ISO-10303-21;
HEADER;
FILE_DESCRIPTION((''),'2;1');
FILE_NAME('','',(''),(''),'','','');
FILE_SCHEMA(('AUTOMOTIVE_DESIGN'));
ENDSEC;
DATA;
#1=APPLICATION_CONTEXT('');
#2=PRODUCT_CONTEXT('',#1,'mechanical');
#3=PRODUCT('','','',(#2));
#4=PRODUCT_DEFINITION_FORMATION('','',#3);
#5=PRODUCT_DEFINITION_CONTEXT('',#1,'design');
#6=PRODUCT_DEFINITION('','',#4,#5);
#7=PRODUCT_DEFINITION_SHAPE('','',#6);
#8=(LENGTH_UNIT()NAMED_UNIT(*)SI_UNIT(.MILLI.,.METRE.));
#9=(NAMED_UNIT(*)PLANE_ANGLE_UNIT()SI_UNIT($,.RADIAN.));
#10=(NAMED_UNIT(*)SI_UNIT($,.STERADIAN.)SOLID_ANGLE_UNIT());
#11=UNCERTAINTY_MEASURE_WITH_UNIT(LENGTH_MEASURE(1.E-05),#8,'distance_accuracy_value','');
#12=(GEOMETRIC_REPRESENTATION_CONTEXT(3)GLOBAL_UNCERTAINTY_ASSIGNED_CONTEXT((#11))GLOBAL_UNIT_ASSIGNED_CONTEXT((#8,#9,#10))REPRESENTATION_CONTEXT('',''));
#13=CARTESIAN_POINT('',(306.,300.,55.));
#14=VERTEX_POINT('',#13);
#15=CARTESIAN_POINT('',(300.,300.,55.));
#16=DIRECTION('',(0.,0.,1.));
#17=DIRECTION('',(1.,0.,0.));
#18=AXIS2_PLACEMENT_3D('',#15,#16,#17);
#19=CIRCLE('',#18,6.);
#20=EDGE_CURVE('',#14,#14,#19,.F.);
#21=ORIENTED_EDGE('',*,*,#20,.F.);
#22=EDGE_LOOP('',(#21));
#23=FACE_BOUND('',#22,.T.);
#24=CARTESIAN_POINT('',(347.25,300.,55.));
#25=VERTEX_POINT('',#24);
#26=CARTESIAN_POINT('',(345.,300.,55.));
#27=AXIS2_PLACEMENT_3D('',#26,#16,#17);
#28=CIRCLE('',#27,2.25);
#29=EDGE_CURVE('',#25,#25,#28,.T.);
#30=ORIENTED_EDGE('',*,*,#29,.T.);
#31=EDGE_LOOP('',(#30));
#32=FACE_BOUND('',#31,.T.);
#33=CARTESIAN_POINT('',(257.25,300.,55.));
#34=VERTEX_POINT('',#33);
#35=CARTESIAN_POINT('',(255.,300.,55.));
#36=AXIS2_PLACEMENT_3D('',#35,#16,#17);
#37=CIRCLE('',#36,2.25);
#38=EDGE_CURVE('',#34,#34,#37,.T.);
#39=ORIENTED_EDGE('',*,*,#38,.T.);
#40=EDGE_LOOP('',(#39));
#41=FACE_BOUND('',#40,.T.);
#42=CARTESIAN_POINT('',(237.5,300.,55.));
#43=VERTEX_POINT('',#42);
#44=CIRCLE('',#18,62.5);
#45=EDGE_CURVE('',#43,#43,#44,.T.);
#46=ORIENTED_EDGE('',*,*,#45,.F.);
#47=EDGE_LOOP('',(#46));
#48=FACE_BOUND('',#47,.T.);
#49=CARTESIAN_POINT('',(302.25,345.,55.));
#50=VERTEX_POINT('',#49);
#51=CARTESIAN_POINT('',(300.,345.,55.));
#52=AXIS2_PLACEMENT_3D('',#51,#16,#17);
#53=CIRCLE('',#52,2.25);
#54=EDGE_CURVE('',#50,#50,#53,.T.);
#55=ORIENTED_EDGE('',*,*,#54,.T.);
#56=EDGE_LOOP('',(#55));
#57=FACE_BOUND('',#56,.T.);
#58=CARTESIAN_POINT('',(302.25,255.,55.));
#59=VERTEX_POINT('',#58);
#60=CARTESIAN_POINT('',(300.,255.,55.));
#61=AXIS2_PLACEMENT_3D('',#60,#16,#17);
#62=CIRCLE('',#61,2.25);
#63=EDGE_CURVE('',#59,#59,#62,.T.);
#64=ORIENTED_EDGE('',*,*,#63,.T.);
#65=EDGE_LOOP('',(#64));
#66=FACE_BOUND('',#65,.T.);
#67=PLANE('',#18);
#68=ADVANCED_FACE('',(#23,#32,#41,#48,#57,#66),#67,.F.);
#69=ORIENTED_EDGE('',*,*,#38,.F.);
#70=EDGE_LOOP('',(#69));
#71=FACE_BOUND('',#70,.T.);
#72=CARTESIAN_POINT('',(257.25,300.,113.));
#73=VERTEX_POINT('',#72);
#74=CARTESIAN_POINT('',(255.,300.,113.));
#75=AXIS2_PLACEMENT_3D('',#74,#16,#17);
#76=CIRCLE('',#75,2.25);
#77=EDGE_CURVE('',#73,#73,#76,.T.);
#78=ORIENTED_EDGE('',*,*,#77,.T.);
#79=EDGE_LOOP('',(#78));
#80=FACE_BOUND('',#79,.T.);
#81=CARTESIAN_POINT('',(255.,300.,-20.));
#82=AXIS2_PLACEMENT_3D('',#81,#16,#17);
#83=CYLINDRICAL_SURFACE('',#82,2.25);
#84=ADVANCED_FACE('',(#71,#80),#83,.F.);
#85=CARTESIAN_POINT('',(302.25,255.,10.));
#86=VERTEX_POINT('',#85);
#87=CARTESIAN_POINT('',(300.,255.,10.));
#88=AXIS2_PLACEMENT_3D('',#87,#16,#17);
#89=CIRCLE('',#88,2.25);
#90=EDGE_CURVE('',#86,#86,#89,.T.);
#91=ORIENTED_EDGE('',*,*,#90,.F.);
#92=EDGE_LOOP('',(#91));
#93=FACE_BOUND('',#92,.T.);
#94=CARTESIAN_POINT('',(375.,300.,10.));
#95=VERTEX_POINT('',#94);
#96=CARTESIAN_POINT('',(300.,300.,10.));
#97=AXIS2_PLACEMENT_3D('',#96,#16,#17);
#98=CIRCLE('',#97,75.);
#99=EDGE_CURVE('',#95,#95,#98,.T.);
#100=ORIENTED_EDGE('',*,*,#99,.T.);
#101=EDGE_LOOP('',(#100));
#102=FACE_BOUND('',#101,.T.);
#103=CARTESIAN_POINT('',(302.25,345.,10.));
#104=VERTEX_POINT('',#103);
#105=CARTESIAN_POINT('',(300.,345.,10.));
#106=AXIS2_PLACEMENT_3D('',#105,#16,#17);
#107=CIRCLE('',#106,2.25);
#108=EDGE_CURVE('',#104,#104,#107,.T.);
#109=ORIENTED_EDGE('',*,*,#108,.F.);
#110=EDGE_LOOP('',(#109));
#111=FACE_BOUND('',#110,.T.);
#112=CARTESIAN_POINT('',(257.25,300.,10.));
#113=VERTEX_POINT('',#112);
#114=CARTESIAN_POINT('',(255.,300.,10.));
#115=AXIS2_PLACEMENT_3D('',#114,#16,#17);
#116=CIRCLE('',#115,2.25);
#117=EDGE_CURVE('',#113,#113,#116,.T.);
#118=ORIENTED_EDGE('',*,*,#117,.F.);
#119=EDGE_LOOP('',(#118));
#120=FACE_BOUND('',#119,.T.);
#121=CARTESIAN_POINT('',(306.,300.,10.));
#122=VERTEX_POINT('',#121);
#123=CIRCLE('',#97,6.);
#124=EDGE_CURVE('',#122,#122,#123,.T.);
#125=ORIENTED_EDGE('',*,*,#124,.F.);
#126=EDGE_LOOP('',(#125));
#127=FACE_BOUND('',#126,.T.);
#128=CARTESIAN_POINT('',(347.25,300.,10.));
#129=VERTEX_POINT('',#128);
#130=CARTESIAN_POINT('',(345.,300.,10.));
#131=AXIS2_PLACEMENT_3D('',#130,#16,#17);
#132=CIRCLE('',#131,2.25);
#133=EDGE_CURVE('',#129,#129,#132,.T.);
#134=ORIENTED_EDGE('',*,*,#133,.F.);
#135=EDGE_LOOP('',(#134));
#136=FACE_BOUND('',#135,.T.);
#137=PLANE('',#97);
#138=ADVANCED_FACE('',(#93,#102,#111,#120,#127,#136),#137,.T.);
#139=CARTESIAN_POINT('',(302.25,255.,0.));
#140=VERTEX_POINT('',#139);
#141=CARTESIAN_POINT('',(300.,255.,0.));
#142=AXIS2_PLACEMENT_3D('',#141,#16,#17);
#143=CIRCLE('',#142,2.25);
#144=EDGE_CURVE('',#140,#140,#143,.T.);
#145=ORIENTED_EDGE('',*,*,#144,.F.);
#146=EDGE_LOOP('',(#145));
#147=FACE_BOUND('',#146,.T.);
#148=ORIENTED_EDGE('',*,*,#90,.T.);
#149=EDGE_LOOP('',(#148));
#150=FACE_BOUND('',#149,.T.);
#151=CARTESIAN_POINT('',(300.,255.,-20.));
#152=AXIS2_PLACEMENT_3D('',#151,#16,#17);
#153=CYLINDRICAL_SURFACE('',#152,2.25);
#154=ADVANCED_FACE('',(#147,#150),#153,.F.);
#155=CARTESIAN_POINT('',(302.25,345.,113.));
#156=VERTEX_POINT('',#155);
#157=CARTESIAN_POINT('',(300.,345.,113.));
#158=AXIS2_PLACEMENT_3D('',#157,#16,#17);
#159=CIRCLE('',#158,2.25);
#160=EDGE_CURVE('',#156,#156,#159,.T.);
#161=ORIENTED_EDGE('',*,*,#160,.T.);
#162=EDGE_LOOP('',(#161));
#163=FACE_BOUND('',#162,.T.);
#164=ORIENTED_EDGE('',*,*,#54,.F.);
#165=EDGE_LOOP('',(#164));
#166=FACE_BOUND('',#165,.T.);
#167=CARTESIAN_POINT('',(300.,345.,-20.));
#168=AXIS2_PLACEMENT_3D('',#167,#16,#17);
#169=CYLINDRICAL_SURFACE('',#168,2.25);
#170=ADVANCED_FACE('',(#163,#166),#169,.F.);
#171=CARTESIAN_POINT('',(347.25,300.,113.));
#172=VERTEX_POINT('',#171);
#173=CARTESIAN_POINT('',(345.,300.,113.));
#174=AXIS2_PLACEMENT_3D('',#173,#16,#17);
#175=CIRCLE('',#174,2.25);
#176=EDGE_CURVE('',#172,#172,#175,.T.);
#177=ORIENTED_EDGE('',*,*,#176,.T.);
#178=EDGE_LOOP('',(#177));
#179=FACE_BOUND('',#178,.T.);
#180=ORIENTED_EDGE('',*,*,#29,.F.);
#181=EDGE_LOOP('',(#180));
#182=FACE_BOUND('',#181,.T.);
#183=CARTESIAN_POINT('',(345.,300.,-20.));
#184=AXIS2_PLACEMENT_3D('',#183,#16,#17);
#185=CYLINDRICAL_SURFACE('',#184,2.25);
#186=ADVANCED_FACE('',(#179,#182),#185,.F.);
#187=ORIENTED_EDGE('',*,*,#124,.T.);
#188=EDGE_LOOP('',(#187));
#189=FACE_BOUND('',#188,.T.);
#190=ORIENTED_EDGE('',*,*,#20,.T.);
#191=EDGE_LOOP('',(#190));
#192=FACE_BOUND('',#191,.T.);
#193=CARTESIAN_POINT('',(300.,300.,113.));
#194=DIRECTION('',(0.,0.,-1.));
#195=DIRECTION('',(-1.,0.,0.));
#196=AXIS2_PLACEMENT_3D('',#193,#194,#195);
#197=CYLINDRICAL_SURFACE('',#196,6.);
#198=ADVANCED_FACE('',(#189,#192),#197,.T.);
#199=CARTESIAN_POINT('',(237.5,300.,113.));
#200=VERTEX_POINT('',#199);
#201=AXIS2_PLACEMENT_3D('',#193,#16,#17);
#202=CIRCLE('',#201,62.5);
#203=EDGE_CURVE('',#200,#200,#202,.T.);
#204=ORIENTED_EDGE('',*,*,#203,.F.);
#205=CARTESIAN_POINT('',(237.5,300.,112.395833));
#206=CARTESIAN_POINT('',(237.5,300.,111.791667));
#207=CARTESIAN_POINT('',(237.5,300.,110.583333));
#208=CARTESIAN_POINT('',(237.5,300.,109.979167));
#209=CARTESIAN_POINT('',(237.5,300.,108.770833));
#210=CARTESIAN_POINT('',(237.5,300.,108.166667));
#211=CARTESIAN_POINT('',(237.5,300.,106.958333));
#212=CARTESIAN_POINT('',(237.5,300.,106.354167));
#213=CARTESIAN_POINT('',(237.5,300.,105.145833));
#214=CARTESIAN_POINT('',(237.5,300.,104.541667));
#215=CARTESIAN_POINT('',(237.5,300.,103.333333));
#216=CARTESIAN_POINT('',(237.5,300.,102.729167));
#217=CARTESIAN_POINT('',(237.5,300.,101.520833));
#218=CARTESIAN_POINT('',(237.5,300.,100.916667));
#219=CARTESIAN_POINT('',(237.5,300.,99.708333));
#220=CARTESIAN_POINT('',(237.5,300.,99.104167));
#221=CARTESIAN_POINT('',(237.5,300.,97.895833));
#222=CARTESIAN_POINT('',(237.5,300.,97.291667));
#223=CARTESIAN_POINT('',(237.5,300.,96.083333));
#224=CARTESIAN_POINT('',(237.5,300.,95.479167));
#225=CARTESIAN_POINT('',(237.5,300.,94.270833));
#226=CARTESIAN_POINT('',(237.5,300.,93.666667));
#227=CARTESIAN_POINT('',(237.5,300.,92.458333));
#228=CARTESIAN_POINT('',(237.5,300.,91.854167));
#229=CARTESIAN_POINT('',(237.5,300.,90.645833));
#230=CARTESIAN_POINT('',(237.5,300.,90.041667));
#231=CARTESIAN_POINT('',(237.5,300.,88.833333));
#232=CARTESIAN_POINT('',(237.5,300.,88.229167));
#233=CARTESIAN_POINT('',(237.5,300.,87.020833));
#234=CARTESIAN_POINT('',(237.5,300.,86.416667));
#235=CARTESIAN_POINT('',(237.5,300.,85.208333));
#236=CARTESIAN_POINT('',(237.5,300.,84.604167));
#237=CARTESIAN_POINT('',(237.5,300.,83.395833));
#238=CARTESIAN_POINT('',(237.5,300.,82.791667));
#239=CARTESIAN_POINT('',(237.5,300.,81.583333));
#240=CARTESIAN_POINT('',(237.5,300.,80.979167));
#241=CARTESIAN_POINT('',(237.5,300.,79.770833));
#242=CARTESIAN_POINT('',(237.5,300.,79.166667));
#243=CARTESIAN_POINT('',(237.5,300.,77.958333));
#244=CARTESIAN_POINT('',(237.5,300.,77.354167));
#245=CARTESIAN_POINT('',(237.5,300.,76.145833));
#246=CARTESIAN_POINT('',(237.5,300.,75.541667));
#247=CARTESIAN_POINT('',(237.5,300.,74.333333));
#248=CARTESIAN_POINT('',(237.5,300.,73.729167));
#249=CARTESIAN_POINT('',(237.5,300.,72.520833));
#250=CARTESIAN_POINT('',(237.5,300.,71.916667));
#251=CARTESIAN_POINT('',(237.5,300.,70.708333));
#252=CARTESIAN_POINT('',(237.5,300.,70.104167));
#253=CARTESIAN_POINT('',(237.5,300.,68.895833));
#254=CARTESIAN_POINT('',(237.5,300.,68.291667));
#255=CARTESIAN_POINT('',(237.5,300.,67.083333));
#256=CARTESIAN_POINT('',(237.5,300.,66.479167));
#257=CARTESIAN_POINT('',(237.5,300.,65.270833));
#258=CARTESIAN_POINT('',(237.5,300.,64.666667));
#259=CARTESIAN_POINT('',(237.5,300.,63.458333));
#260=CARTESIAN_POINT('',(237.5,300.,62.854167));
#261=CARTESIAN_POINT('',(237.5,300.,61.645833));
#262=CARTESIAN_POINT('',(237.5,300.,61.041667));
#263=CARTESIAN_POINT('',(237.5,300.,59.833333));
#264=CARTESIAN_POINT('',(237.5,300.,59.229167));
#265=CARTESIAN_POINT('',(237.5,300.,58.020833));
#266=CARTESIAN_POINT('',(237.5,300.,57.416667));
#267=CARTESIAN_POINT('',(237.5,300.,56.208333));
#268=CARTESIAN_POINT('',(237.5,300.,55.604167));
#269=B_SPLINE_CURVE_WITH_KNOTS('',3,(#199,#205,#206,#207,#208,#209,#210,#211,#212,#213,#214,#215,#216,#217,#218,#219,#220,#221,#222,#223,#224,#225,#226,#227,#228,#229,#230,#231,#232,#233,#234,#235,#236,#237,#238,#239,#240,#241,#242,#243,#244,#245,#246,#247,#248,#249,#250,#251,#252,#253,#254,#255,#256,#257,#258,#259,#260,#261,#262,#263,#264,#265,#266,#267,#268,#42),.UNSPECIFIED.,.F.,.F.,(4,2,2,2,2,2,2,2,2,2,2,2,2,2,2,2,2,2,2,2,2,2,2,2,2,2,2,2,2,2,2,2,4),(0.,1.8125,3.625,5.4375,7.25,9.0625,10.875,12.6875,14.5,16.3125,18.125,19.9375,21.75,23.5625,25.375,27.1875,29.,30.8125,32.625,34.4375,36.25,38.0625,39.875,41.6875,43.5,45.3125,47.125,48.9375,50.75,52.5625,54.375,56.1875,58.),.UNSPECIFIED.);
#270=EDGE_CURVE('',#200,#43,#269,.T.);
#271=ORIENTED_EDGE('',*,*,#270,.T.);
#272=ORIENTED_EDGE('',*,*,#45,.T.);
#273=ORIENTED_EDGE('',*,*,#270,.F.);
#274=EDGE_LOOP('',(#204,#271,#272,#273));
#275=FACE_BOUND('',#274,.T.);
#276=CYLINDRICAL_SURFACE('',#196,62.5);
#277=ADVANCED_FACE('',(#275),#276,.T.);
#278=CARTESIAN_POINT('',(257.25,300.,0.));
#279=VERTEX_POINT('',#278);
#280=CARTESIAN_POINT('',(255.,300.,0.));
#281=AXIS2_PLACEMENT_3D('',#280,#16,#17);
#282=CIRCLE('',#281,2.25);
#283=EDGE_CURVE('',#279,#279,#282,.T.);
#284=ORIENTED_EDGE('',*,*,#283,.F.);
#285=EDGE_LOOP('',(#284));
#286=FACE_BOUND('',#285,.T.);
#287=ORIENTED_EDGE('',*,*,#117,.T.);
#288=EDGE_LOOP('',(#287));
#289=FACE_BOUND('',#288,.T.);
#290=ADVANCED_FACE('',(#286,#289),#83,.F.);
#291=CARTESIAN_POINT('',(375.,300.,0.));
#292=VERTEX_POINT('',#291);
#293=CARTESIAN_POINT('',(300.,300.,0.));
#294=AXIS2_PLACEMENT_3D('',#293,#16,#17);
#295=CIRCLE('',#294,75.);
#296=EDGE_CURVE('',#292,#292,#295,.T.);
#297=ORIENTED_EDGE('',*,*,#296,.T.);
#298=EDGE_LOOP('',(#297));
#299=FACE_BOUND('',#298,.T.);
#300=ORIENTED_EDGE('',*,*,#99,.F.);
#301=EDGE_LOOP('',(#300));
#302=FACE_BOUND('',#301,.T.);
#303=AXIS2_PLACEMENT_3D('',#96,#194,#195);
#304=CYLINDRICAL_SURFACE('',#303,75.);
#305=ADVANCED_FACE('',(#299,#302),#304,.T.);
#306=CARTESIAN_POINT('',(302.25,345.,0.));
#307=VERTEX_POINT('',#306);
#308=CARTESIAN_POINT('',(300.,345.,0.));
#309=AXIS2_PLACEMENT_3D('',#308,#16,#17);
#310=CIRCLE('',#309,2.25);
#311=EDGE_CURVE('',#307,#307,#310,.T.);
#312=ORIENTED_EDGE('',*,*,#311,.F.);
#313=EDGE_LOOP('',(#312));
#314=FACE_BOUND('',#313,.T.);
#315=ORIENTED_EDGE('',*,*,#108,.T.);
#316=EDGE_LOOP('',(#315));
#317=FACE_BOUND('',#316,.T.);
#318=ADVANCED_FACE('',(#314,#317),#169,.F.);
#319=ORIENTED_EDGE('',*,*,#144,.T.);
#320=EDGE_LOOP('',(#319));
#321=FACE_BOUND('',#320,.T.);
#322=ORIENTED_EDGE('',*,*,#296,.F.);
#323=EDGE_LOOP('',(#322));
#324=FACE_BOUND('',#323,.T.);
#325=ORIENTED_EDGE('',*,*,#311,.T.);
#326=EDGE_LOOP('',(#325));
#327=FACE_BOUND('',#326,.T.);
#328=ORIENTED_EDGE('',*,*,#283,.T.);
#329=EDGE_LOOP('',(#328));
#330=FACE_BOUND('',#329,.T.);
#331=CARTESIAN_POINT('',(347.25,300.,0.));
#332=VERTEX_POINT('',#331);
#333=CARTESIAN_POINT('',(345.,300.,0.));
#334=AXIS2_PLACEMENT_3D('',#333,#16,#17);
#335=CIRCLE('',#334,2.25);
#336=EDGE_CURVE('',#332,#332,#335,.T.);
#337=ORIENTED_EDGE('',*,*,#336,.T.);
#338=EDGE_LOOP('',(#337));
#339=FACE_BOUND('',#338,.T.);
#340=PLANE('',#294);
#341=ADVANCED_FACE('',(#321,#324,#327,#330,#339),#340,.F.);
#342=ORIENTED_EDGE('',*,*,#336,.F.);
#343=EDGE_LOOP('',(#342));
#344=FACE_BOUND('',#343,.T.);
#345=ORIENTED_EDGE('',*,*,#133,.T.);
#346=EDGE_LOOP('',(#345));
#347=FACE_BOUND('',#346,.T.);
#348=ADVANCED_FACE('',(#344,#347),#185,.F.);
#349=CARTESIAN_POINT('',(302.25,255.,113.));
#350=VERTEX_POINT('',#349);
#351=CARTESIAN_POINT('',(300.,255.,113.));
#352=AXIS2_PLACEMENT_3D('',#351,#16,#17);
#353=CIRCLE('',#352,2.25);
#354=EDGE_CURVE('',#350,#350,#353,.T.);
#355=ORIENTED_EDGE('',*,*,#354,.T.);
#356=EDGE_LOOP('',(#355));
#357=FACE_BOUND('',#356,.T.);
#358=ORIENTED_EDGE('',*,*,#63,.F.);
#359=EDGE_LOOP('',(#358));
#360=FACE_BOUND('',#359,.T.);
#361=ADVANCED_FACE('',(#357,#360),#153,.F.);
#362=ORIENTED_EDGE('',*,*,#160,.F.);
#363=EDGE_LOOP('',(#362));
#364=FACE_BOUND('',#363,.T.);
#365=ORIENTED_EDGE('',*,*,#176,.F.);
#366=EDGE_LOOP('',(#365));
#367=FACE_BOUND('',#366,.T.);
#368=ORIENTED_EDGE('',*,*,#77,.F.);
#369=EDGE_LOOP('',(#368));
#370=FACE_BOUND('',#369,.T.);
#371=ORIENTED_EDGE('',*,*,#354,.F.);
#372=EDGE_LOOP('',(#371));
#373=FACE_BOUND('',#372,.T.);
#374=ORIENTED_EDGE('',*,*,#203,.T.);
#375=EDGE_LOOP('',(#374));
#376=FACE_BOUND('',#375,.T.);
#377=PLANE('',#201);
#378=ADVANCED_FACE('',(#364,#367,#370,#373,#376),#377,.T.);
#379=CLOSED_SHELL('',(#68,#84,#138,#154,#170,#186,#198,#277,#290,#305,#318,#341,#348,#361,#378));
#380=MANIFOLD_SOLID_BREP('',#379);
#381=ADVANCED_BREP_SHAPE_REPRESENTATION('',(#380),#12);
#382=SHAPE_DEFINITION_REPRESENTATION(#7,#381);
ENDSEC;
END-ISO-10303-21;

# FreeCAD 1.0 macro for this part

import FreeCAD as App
import Part
import Sketcher

doc = App.newDocument("Part")
params = doc.addObject("Spreadsheet::Sheet", "Params")
for row, (alias, value) in enumerate([
    ("sketch1_diameter", "125 mm"),
    ("pad1_length", "58 mm"),
    ("sketch2_diameter", "12 mm"),
    ("pad2_length", "113 mm"),
    ("sketch3_diameter", "150 mm"),
    ("pad3_length", "10 mm"),
    ("sketch4_diameter", "4.5 mm"),
    ("pocket1_length", "133 mm"),
    ("sketch5_diameter", "4.5 mm"),
    ("pocket2_length", "133 mm"),
    ("sketch6_diameter", "4.5 mm"),
    ("pocket3_length", "133 mm"),
    ("sketch7_diameter", "4.5 mm"),
    ("pocket4_length", "133 mm"),
], start=1):
    params.set(f"A{row}", alias)
    params.set(f"B{row}", "=" + value)
    params.setAlias(f"B{row}", alias)

body = doc.addObject("PartDesign::Body", "Body")

# Sketch on XY plane
sketch1 = doc.addObject("Sketcher::SketchObject", "Sketch")
body.addObject(sketch1)
sketch1.AttachmentSupport = (doc.XY_Plane, [""])
sketch1.MapMode = "FlatFace"
sketch1.AttachmentOffset = App.Placement(App.Vector(0, 0, 55), App.Rotation())
sketch1.addGeometry(Part.Circle(App.Vector(300, 300, 0), App.Vector(0, 0, 1), 62), False)
sketch1.addConstraint(Sketcher.Constraint("Diameter", 0, 125.0))
sketch1.addConstraint(Sketcher.Constraint("DistanceX", -1, 1, 0, 3, 300.0))
sketch1.addConstraint(Sketcher.Constraint("DistanceY", -1, 1, 0, 3, 300.0))
sketch1.setExpression("Constraints[0]", "Params.sketch1_diameter")
pad1 = doc.addObject("PartDesign::Pad", "Pad")
body.addObject(pad1)
pad1.Profile = sketch1
pad1.setExpression("Length", "Params.pad1_length")

# Sketch on XY plane
sketch2 = doc.addObject("Sketcher::SketchObject", "Sketch001")
body.addObject(sketch2)
sketch2.AttachmentSupport = (doc.XY_Plane, [""])
sketch2.MapMode = "FlatFace"
sketch2.addGeometry(Part.Circle(App.Vector(300, 300, 0), App.Vector(0, 0, 1), 6), False)
sketch2.addConstraint(Sketcher.Constraint("Diameter", 0, 12.0))
sketch2.addConstraint(Sketcher.Constraint("DistanceX", -1, 1, 0, 3, 300.0))
sketch2.addConstraint(Sketcher.Constraint("DistanceY", -1, 1, 0, 3, 300.0))
sketch2.setExpression("Constraints[0]", "Params.sketch2_diameter")
pad2 = doc.addObject("PartDesign::Pad", "Pad001")
body.addObject(pad2)
pad2.Profile = sketch2
pad2.setExpression("Length", "Params.pad2_length")

# Sketch on XY plane
sketch3 = doc.addObject("Sketcher::SketchObject", "Sketch002")
body.addObject(sketch3)
sketch3.AttachmentSupport = (doc.XY_Plane, [""])
sketch3.MapMode = "FlatFace"
sketch3.addGeometry(Part.Circle(App.Vector(300, 300, 0), App.Vector(0, 0, 1), 75), False)
sketch3.addConstraint(Sketcher.Constraint("Diameter", 0, 150.0))
sketch3.addConstraint(Sketcher.Constraint("DistanceX", -1, 1, 0, 3, 300.0))
sketch3.addConstraint(Sketcher.Constraint("DistanceY", -1, 1, 0, 3, 300.0))
sketch3.setExpression("Constraints[0]", "Params.sketch3_diameter")
pad3 = doc.addObject("PartDesign::Pad", "Pad002")
body.addObject(pad3)
pad3.Profile = sketch3
pad3.setExpression("Length", "Params.pad3_length")

# Sketch on XY plane
sketch4 = doc.addObject("Sketcher::SketchObject", "Sketch003")
body.addObject(sketch4)
sketch4.AttachmentSupport = (doc.XY_Plane, [""])
sketch4.MapMode = "FlatFace"
sketch4.AttachmentOffset = App.Placement(App.Vector(0, 0, 113), App.Rotation())
sketch4.addGeometry(Part.Circle(App.Vector(345, 300, 0), App.Vector(0, 0, 1), 2.2), False)
sketch4.addConstraint(Sketcher.Constraint("Diameter", 0, 4.5))
sketch4.addConstraint(Sketcher.Constraint("DistanceX", -1, 1, 0, 3, 345.0))
sketch4.addConstraint(Sketcher.Constraint("DistanceY", -1, 1, 0, 3, 300.0))
sketch4.setExpression("Constraints[0]", "Params.sketch4_diameter")
pocket1 = doc.addObject("PartDesign::Pocket", "Pocket")
body.addObject(pocket1)
pocket1.Profile = sketch4
pocket1.setExpression("Length", "Params.pocket1_length")

# Sketch on XY plane
sketch5 = doc.addObject("Sketcher::SketchObject", "Sketch004")
body.addObject(sketch5)
sketch5.AttachmentSupport = (doc.XY_Plane, [""])
sketch5.MapMode = "FlatFace"
sketch5.AttachmentOffset = App.Placement(App.Vector(0, 0, 113), App.Rotation())
sketch5.addGeometry(Part.Circle(App.Vector(255, 300, 0), App.Vector(0, 0, 1), 2.2), False)
sketch5.addConstraint(Sketcher.Constraint("Diameter", 0, 4.5))
sketch5.addConstraint(Sketcher.Constraint("DistanceX", -1, 1, 0, 3, 255.0))
sketch5.addConstraint(Sketcher.Constraint("DistanceY", -1, 1, 0, 3, 300.0))
sketch5.setExpression("Constraints[0]", "Params.sketch5_diameter")
pocket2 = doc.addObject("PartDesign::Pocket", "Pocket001")
body.addObject(pocket2)
pocket2.Profile = sketch5
pocket2.setExpression("Length", "Params.pocket2_length")

# Sketch on XY plane
sketch6 = doc.addObject("Sketcher::SketchObject", "Sketch005")
body.addObject(sketch6)
sketch6.AttachmentSupport = (doc.XY_Plane, [""])
sketch6.MapMode = "FlatFace"
sketch6.AttachmentOffset = App.Placement(App.Vector(0, 0, 113), App.Rotation())
sketch6.addGeometry(Part.Circle(App.Vector(300, 345, 0), App.Vector(0, 0, 1), 2.2), False)
sketch6.addConstraint(Sketcher.Constraint("Diameter", 0, 4.5))
sketch6.addConstraint(Sketcher.Constraint("DistanceX", -1, 1, 0, 3, 300.0))
sketch6.addConstraint(Sketcher.Constraint("DistanceY", -1, 1, 0, 3, 345.0))
sketch6.setExpression("Constraints[0]", "Params.sketch6_diameter")
pocket3 = doc.addObject("PartDesign::Pocket", "Pocket002")
body.addObject(pocket3)
pocket3.Profile = sketch6
pocket3.setExpression("Length", "Params.pocket3_length")

# Sketch on XY plane
sketch7 = doc.addObject("Sketcher::SketchObject", "Sketch006")
body.addObject(sketch7)
sketch7.AttachmentSupport = (doc.XY_Plane, [""])
sketch7.MapMode = "FlatFace"
sketch7.AttachmentOffset = App.Placement(App.Vector(0, 0, 113), App.Rotation())
sketch7.addGeometry(Part.Circle(App.Vector(300, 255, 0), App.Vector(0, 0, 1), 2.2), False)
sketch7.addConstraint(Sketcher.Constraint("Diameter", 0, 4.5))
sketch7.addConstraint(Sketcher.Constraint("DistanceX", -1, 1, 0, 3, 300.0))
sketch7.addConstraint(Sketcher.Constraint("DistanceY", -1, 1, 0, 3, 255.0))
sketch7.setExpression("Constraints[0]", "Params.sketch7_diameter")
pocket4 = doc.addObject("PartDesign::Pocket", "Pocket003")
body.addObject(pocket4)
pocket4.Profile = sketch7
pocket4.setExpression("Length", "Params.pocket4_length")

doc.recompute()
